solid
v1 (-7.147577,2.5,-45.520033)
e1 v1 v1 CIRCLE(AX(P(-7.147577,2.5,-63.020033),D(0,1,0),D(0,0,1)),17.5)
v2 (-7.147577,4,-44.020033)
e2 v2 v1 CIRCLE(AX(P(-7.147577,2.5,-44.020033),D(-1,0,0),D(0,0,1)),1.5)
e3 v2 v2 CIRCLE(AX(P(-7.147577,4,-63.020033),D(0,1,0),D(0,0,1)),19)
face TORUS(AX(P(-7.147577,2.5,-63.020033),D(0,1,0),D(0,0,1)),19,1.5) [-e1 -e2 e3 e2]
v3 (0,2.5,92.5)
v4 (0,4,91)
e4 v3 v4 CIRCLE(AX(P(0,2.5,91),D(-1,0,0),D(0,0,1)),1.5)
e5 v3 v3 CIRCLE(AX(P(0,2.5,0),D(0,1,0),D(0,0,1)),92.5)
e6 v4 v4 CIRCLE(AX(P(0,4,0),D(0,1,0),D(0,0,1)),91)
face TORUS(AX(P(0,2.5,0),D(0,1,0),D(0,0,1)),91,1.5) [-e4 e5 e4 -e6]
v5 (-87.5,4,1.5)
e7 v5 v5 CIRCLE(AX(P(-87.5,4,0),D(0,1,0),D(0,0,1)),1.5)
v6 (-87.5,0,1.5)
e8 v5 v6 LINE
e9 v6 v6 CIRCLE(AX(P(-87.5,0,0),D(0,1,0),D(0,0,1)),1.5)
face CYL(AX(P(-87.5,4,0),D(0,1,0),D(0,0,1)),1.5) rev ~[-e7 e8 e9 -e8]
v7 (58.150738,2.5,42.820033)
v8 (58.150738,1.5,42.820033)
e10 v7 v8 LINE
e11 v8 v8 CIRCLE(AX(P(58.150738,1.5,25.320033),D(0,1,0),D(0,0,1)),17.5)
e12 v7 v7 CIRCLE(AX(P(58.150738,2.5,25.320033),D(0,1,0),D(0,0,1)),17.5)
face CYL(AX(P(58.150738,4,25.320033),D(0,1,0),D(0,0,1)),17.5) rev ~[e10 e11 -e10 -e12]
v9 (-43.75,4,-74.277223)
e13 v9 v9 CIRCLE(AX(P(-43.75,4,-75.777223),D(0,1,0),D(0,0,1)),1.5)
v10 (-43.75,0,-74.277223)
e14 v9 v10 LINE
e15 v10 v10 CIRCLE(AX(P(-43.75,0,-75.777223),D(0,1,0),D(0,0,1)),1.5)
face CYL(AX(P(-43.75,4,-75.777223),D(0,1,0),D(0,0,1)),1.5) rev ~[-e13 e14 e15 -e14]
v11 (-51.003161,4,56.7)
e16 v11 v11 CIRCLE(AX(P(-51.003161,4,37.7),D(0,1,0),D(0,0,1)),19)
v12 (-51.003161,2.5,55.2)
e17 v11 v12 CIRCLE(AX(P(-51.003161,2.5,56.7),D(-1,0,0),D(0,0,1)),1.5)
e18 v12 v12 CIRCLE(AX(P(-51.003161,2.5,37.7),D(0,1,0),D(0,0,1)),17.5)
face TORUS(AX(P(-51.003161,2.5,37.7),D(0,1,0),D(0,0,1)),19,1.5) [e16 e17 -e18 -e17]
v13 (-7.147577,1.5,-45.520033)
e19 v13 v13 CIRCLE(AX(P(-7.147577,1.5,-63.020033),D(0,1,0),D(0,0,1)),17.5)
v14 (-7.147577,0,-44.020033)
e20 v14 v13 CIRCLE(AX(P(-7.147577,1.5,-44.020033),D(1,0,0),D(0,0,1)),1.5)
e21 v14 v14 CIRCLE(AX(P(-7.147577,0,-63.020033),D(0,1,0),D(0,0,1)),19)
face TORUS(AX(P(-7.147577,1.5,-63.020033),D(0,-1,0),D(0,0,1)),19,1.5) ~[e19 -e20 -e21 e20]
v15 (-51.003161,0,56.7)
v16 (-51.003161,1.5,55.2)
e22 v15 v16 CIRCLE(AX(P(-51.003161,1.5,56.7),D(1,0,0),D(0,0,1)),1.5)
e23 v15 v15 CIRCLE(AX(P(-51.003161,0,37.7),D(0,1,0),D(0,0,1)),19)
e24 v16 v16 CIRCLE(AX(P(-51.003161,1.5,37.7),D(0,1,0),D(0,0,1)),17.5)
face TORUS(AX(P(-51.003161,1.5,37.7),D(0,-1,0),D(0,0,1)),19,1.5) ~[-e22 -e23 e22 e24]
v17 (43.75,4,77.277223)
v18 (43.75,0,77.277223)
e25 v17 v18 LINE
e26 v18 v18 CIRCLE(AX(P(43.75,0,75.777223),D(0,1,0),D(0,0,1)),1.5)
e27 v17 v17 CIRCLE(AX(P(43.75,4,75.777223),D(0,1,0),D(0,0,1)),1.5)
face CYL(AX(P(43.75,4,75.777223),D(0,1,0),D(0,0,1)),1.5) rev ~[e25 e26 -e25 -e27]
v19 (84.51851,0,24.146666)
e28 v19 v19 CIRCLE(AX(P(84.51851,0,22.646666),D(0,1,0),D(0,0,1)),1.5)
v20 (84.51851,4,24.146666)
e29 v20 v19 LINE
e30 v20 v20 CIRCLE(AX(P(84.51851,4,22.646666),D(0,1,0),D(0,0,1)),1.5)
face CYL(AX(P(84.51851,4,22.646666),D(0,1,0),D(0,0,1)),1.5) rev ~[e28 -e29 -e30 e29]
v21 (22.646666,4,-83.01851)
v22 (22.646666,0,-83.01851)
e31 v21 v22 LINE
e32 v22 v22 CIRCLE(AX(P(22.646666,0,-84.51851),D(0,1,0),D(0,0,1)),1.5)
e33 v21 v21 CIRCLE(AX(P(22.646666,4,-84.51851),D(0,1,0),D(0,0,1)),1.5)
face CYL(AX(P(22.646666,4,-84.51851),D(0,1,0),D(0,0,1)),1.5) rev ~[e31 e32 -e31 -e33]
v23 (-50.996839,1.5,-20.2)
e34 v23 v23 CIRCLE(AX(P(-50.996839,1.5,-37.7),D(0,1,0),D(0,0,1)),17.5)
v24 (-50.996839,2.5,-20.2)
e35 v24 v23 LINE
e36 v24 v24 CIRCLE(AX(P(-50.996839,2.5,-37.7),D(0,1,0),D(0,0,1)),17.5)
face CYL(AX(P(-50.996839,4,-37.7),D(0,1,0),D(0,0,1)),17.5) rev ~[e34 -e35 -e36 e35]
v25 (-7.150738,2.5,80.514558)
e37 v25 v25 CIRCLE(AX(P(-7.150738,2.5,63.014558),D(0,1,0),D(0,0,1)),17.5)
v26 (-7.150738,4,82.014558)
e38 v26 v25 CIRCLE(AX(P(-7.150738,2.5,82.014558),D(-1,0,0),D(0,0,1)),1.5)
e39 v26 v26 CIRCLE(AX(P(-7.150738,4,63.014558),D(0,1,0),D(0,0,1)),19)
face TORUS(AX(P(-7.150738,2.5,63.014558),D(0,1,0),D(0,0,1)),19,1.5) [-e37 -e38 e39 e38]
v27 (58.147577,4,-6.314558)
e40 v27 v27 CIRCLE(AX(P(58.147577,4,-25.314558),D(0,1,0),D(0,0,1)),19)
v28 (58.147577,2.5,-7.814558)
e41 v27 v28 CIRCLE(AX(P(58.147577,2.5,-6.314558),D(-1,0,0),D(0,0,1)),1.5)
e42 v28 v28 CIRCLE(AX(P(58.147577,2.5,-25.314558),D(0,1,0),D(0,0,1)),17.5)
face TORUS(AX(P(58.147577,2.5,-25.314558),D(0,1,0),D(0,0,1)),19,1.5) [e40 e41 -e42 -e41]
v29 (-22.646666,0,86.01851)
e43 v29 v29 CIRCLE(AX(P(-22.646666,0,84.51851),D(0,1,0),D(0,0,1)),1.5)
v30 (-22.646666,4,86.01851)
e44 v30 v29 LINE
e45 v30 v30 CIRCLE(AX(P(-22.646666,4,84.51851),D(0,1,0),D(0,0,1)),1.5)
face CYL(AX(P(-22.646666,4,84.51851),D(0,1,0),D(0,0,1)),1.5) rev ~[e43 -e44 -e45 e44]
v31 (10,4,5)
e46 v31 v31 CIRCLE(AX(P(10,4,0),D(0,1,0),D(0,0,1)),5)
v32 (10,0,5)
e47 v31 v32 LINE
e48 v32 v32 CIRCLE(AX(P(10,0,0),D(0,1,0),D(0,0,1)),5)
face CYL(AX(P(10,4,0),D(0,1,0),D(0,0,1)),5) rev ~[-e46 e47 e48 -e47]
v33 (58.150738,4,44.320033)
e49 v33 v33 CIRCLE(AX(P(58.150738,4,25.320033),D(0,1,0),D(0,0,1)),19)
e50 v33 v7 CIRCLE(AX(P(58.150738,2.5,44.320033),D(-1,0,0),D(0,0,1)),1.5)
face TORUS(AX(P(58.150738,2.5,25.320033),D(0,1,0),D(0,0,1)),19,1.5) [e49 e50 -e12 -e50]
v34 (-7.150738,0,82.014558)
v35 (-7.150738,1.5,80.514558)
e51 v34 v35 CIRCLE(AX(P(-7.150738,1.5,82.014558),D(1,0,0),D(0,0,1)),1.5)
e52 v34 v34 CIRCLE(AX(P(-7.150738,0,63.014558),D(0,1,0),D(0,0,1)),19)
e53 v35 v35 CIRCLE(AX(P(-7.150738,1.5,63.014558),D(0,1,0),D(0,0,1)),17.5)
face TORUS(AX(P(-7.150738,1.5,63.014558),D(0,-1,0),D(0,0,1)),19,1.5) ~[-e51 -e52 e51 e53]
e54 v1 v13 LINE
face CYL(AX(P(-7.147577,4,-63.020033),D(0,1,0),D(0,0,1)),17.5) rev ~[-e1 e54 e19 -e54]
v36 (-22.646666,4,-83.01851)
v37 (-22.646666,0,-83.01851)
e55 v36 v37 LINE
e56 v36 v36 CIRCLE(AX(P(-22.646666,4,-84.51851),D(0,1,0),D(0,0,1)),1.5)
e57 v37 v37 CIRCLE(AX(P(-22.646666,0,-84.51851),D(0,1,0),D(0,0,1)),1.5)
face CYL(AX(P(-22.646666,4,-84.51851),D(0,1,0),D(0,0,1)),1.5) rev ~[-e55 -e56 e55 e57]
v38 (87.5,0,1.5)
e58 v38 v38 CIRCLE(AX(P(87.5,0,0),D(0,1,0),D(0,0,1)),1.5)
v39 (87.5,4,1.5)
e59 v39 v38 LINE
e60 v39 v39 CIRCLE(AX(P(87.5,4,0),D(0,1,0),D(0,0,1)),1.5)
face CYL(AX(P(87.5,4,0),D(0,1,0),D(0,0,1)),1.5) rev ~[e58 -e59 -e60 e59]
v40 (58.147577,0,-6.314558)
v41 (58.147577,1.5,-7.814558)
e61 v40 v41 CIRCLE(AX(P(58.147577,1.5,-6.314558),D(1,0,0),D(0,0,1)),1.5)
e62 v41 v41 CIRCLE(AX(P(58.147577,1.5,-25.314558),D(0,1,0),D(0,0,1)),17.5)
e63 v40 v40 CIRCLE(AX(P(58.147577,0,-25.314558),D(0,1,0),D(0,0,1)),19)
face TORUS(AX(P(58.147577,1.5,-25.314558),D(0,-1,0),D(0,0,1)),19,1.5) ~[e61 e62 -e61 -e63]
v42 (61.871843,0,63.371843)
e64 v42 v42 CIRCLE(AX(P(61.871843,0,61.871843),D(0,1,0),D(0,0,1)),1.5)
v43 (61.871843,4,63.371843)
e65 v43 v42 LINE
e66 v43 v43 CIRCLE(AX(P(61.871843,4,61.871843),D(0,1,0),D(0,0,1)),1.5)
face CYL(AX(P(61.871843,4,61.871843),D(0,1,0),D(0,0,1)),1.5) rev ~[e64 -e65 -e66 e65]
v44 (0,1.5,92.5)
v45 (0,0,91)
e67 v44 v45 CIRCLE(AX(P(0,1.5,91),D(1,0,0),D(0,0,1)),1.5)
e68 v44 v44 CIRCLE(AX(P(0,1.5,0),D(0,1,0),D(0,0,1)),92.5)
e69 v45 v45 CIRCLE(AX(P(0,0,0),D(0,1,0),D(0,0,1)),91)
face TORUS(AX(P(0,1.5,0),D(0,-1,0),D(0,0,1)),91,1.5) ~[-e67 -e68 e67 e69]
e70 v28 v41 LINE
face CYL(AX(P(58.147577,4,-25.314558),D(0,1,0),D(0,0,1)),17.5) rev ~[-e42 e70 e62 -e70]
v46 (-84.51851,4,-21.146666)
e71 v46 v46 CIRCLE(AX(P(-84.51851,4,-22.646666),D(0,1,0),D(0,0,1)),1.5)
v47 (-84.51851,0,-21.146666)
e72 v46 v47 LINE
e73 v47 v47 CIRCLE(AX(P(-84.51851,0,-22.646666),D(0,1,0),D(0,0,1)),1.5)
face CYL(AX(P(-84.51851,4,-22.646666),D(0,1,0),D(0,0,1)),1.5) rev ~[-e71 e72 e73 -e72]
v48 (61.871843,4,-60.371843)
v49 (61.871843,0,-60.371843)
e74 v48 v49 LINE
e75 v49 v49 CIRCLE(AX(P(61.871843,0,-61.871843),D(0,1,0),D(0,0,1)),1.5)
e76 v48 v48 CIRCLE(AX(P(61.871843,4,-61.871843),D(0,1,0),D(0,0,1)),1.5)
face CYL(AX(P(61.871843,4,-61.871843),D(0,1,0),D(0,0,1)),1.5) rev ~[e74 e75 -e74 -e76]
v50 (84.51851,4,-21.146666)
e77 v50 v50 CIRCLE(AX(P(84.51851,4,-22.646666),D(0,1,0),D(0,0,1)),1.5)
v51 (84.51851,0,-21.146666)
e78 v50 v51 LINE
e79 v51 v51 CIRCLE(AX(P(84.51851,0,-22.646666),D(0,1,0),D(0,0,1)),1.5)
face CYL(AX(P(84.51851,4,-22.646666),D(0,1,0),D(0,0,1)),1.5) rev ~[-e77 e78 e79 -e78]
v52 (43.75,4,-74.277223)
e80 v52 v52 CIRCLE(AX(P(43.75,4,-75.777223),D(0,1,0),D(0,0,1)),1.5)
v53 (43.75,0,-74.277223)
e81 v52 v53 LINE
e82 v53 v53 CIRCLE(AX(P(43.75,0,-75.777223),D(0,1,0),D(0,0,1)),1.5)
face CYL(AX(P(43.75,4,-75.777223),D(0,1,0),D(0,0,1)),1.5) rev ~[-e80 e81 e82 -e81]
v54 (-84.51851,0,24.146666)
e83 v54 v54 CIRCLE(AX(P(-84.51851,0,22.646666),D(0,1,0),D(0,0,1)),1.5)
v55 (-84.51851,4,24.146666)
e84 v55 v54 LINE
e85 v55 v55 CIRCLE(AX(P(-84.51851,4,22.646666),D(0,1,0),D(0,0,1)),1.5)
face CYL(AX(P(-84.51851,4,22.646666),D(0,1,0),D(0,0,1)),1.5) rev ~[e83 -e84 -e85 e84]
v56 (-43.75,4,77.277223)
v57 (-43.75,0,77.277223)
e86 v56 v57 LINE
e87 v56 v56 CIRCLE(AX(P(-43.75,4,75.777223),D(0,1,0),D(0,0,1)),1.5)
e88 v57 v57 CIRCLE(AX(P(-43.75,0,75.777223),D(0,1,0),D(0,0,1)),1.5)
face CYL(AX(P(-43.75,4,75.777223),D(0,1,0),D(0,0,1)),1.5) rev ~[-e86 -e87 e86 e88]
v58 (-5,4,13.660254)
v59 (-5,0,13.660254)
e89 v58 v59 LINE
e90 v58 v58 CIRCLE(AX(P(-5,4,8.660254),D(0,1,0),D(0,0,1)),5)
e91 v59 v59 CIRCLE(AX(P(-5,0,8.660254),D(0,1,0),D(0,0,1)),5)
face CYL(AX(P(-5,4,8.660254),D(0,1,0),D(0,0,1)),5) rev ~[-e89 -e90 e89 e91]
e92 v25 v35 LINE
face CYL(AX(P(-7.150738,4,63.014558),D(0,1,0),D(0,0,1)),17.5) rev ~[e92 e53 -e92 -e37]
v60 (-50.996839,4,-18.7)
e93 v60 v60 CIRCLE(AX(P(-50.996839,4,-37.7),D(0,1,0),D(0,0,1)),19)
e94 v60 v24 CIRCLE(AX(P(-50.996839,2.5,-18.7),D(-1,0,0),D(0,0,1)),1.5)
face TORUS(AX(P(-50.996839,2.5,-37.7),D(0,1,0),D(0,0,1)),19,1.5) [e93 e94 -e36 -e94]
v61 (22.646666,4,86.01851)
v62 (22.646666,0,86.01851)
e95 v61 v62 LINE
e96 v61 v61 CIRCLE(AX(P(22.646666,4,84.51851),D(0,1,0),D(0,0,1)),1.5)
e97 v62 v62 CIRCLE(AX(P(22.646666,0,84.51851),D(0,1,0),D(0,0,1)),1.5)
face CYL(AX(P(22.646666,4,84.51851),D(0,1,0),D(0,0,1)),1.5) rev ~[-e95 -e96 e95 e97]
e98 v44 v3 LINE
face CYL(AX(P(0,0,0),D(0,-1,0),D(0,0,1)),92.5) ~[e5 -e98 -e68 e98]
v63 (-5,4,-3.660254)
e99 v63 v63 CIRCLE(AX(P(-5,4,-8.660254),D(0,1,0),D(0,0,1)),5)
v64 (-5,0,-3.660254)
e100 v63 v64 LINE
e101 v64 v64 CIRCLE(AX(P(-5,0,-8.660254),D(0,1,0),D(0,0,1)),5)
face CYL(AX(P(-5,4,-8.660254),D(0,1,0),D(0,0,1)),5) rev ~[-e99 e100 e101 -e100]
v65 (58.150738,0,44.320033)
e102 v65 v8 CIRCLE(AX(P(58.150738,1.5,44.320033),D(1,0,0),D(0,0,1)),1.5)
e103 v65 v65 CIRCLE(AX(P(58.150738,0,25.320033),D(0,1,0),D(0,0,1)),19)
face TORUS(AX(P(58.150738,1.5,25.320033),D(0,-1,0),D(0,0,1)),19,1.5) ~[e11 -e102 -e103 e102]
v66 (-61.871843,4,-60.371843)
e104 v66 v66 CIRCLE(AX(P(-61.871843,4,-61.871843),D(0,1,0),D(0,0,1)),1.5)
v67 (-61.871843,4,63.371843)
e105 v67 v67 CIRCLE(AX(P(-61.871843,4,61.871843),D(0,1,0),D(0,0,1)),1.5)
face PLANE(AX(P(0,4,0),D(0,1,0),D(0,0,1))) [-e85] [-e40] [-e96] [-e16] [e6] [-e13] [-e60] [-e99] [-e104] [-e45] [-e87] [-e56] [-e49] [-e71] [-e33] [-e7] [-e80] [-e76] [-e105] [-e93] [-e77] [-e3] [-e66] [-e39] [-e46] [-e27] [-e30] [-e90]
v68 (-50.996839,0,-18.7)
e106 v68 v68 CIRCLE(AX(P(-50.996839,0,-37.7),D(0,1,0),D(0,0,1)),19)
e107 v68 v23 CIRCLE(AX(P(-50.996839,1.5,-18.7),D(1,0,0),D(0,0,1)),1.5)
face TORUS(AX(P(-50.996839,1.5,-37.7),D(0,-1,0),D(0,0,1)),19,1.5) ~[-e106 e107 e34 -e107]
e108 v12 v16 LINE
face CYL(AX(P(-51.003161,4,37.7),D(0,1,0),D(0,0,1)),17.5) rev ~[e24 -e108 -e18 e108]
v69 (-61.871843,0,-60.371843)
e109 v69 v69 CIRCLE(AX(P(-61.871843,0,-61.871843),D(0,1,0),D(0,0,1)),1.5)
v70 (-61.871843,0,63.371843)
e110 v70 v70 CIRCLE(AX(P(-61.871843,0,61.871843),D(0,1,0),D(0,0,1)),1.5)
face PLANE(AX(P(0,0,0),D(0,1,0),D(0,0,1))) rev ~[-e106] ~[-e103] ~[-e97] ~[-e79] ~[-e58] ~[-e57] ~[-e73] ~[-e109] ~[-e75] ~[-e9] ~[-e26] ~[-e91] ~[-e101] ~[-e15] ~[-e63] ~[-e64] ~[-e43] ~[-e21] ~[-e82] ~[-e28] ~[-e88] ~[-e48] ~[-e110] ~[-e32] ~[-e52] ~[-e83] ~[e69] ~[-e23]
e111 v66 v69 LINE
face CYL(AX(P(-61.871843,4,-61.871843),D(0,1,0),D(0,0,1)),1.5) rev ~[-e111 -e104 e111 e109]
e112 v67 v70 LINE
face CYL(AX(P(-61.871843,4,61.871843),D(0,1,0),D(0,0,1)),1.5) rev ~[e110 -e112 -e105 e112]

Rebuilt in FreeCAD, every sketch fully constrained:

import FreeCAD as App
import Part
import Sketcher


def edges_at(feature, points):
    """Names of the edges that pass closest to the given points."""
    edges = feature.Shape.Edges
    near = lambda p: min(range(len(edges)), key=lambda i: edges[i].distToShape(Part.Vertex(*p))[0])
    return sorted({f"Edge{near(p) + 1}" for p in points})

doc = App.newDocument("Part")
params = doc.addObject("Spreadsheet::Sheet", "Params")
for row, (alias, value) in enumerate([
    ("sketch1_diameter", "185 mm"),
    ("pad1_length", "4 mm"),
    ("sketch2_diameter", "35 mm"),
    ("sketch2_diameter2", "3 mm"),
    ("sketch2_diameter3", "10 mm"),
    ("fillet_radius", "1.5 mm"),
], start=1):
    params.set(f"A{row}", alias)
    params.set(f"B{row}", "=" + value)
    params.setAlias(f"B{row}", alias)

body = doc.addObject("PartDesign::Body", "Body")

sketch1 = body.newObject("Sketcher::SketchObject", "Sketch")
sketch1.AttachmentSupport = (doc.getObject("XZ_Plane"), [""])
sketch1.MapMode = "FlatFace"
sketch1.addGeometry(Part.Circle(App.Vector(0, 0, 0), App.Vector(0, 0, 1), 92.5), False)
sketch1.addConstraint([
    Sketcher.Constraint("Coincident", 0, 3, -1, 1),
    Sketcher.Constraint("Diameter", 0, 185.0),
])
sketch1.setExpression("Constraints[1]", "Params.sketch1_diameter")
pad1 = body.newObject("PartDesign::Pad", "Pad")
pad1.Profile = sketch1
pad1.setExpression("Length", "Params.pad1_length")
pad1.Reversed = True

sketch2 = body.newObject("Sketcher::SketchObject", "Sketch001")
sketch2.AttachmentSupport = (doc.getObject("XZ_Plane"), [""])
sketch2.MapMode = "FlatFace"
sketch2.AttachmentOffset = App.Placement(App.Vector(0, 0, -4), App.Rotation())
sketch2.addGeometry([
    Part.Circle(App.Vector(-50.996839, -37.7, 0), App.Vector(0, 0, 1), 17.5),
    Part.Circle(App.Vector(-43.75, -75.777223, 0), App.Vector(0, 0, 1), 1.5),
    Part.Circle(App.Vector(-7.147577, -63.020033, 0), App.Vector(0, 0, 1), 17.5),
    Part.Circle(App.Vector(-5, -8.660254, 0), App.Vector(0, 0, 1), 5),
    Part.Circle(App.Vector(-22.646666, -84.51851, 0), App.Vector(0, 0, 1), 1.5),
    Part.Circle(App.Vector(-61.871843, -61.871843, 0), App.Vector(0, 0, 1), 1.5),
    Part.Circle(App.Vector(43.75, -75.777223, 0), App.Vector(0, 0, 1), 1.5),
    Part.Circle(App.Vector(22.646666, -84.51851, 0), App.Vector(0, 0, 1), 1.5),
    Part.Circle(App.Vector(61.871843, -61.871843, 0), App.Vector(0, 0, 1), 1.5),
    Part.Circle(App.Vector(87.5, 0, 0), App.Vector(0, 0, 1), 1.5),
    Part.Circle(App.Vector(84.51851, -22.646666, 0), App.Vector(0, 0, 1), 1.5),
    Part.Circle(App.Vector(84.51851, 22.646666, 0), App.Vector(0, 0, 1), 1.5),
    Part.Circle(App.Vector(58.150738, 25.320033, 0), App.Vector(0, 0, 1), 17.5),
    Part.Circle(App.Vector(58.147577, -25.314558, 0), App.Vector(0, 0, 1), 17.5),
    Part.Circle(App.Vector(-51.003161, 37.7, 0), App.Vector(0, 0, 1), 17.5),
    Part.Circle(App.Vector(-7.150738, 63.014558, 0), App.Vector(0, 0, 1), 17.5),
    Part.Circle(App.Vector(10, 0, 0), App.Vector(0, 0, 1), 5),
    Part.Circle(App.Vector(-5, 8.660254, 0), App.Vector(0, 0, 1), 5),
    Part.Circle(App.Vector(43.75, 75.777223, 0), App.Vector(0, 0, 1), 1.5),
    Part.Circle(App.Vector(61.871843, 61.871843, 0), App.Vector(0, 0, 1), 1.5),
    Part.Circle(App.Vector(22.646666, 84.51851, 0), App.Vector(0, 0, 1), 1.5),
    Part.Circle(App.Vector(-43.75, 75.777223, 0), App.Vector(0, 0, 1), 1.5),
    Part.Circle(App.Vector(-22.646666, 84.51851, 0), App.Vector(0, 0, 1), 1.5),
    Part.Circle(App.Vector(-61.871843, 61.871843, 0), App.Vector(0, 0, 1), 1.5),
    Part.Circle(App.Vector(-87.5, 0, 0), App.Vector(0, 0, 1), 1.5),
    Part.Circle(App.Vector(-84.51851, 22.646666, 0), App.Vector(0, 0, 1), 1.5),
    Part.Circle(App.Vector(-84.51851, -22.646666, 0), App.Vector(0, 0, 1), 1.5),
], False)
sketch2.addConstraint([
    Sketcher.Constraint("Equal", 0, 2),
    Sketcher.Constraint("Equal", 1, 4),
    Sketcher.Constraint("Equal", 4, 5),
    Sketcher.Constraint("Equal", 5, 6),
    Sketcher.Constraint("Equal", 6, 7),
    Sketcher.Constraint("Equal", 7, 8),
    Sketcher.Constraint("Equal", 8, 9),
    Sketcher.Constraint("Equal", 9, 10),
    Sketcher.Constraint("Equal", 10, 11),
    Sketcher.Constraint("Equal", 2, 12),
    Sketcher.Constraint("Equal", 12, 13),
    Sketcher.Constraint("Equal", 13, 14),
    Sketcher.Constraint("Equal", 14, 15),
    Sketcher.Constraint("Equal", 3, 16),
    Sketcher.Constraint("Equal", 16, 17),
    Sketcher.Constraint("Equal", 11, 18),
    Sketcher.Constraint("Equal", 18, 19),
    Sketcher.Constraint("Equal", 19, 20),
    Sketcher.Constraint("Equal", 20, 21),
    Sketcher.Constraint("Equal", 21, 22),
    Sketcher.Constraint("Equal", 22, 23),
    Sketcher.Constraint("Equal", 23, 24),
    Sketcher.Constraint("Equal", 24, 25),
    Sketcher.Constraint("Equal", 25, 26),
    Sketcher.Constraint("Symmetric", 1, 3, 18, 3, -1, 1),
    Sketcher.Constraint("Symmetric", 5, 3, 19, 3, -1, 1),
    Sketcher.Constraint("Symmetric", 4, 3, 20, 3, -1, 1),
    Sketcher.Constraint("Symmetric", 6, 3, 21, 3, -1, 1),
    Sketcher.Constraint("Symmetric", 7, 3, 22, 3, -1, 1),
    Sketcher.Constraint("Symmetric", 8, 3, 23, 3, -1, 1),
    Sketcher.Constraint("Symmetric", 9, 3, 24, 3, -1, 1),
    Sketcher.Constraint("Symmetric", 10, 3, 25, 3, -1, 1),
    Sketcher.Constraint("Symmetric", 11, 3, 26, 3, -1, 1),
    Sketcher.Constraint("Symmetric", 1, 3, 6, 3, -2),
    Sketcher.Constraint("Symmetric", 4, 3, 7, 3, -2),
    Sketcher.Constraint("Symmetric", 5, 3, 8, 3, -2),
    Sketcher.Constraint("Symmetric", 11, 3, 25, 3, -2),
    Sketcher.Constraint("Symmetric", 3, 3, 17, 3, -1),
    Sketcher.Constraint("PointOnObject", 9, 3, -1),
    Sketcher.Constraint("PointOnObject", 16, 3, -1),
    Sketcher.Constraint("Diameter", 0, 35.0),
    Sketcher.Constraint("Diameter", 1, 3.0),
    Sketcher.Constraint("Diameter", 3, 10.0),
    Sketcher.Constraint("DistanceX", 3, 3, -1, 1, 5.0),
    Sketcher.Constraint("DistanceX", -1, 1, 16, 3, 10.0),
    Sketcher.Constraint("DistanceY", 0, 3, -1, 1, 37.7),
    Sketcher.Constraint("DistanceX", -1, 1, 9, 3, 87.5),
    Sketcher.Constraint("DistanceY", -1, 1, 14, 3, 37.7),
    Sketcher.Constraint("DistanceX", 1, 3, 6, 3, 87.5),
    Sketcher.Constraint("DistanceY", 10, 3, 12, 3, 47.966699),
    Sketcher.Constraint("DistanceX", 14, 3, 12, 3, 109.153899),
    Sketcher.Constraint("DistanceX", 0, 3, -1, 1, 50.996839),
    Sketcher.Constraint("DistanceY", 4, 3, -1, 1, 84.51851),
    Sketcher.Constraint("DistanceX", -1, 1, 10, 3, 84.51851),
    Sketcher.Constraint("DistanceY", 13, 3, -1, 1, 25.314558),
    Sketcher.Constraint("DistanceX", 14, 3, -1, 1, 51.003161),
    Sketcher.Constraint("DistanceY", -1, 1, 15, 3, 63.014558),
    Sketcher.Constraint("DistanceY", 1, 3, 2, 3, 12.75719),
    Sketcher.Constraint("DistanceY", 2, 3, 3, 3, 54.359779),
    Sketcher.Constraint("DistanceX", 4, 3, 2, 3, 15.499089),
    Sketcher.Constraint("DistanceY", 1, 3, 5, 3, 13.905379),
    Sketcher.Constraint("DistanceX", 2, 3, 8, 3, 69.019421),
    Sketcher.Constraint("DistanceY", 8, 3, 11, 3, 84.51851),
    Sketcher.Constraint("DistanceY", 13, 3, 10, 3, 2.667892),
    Sketcher.Constraint("DistanceX", 13, 3, 12, 3, 0.003161),
    Sketcher.Constraint("DistanceX", 15, 3, 19, 3, 69.022581),
    Sketcher.Constraint("DistanceX", 20, 3, 12, 3, 35.504072),
])
sketch2.setExpression("Constraints[40]", "Params.sketch2_diameter")
sketch2.setExpression("Constraints[41]", "Params.sketch2_diameter2")
sketch2.setExpression("Constraints[42]", "Params.sketch2_diameter3")
pocket1 = body.newObject("PartDesign::Pocket", "Pocket")
pocket1.Profile = sketch2
pocket1.Type = "ThroughAll"
pocket1.Reversed = True
doc.recompute()

fillet = body.newObject("PartDesign::Fillet", "Fillet")
fillet.Base = (pocket1, edges_at(pocket1, [
    (0, 0, -92.5),
    (0, 4, -92.5),
    (-7.148, 0, -80.52),
    (-7.148, 4, -80.52),
    (58.148, 0, -42.815),
    (58.148, 4, -42.815),
    (58.151, 0, 7.82),
    (58.151, 4, 7.82),
    (-7.151, 0, 45.515),
    (-7.151, 4, 45.515),
    (-51.003, 0, 20.2),
    (-51.003, 4, 20.2),
    (-50.997, 0, -55.2),
    (-50.997, 4, -55.2),
]))
fillet.setExpression("Radius", "Params.fillet_radius")

doc.recompute()
